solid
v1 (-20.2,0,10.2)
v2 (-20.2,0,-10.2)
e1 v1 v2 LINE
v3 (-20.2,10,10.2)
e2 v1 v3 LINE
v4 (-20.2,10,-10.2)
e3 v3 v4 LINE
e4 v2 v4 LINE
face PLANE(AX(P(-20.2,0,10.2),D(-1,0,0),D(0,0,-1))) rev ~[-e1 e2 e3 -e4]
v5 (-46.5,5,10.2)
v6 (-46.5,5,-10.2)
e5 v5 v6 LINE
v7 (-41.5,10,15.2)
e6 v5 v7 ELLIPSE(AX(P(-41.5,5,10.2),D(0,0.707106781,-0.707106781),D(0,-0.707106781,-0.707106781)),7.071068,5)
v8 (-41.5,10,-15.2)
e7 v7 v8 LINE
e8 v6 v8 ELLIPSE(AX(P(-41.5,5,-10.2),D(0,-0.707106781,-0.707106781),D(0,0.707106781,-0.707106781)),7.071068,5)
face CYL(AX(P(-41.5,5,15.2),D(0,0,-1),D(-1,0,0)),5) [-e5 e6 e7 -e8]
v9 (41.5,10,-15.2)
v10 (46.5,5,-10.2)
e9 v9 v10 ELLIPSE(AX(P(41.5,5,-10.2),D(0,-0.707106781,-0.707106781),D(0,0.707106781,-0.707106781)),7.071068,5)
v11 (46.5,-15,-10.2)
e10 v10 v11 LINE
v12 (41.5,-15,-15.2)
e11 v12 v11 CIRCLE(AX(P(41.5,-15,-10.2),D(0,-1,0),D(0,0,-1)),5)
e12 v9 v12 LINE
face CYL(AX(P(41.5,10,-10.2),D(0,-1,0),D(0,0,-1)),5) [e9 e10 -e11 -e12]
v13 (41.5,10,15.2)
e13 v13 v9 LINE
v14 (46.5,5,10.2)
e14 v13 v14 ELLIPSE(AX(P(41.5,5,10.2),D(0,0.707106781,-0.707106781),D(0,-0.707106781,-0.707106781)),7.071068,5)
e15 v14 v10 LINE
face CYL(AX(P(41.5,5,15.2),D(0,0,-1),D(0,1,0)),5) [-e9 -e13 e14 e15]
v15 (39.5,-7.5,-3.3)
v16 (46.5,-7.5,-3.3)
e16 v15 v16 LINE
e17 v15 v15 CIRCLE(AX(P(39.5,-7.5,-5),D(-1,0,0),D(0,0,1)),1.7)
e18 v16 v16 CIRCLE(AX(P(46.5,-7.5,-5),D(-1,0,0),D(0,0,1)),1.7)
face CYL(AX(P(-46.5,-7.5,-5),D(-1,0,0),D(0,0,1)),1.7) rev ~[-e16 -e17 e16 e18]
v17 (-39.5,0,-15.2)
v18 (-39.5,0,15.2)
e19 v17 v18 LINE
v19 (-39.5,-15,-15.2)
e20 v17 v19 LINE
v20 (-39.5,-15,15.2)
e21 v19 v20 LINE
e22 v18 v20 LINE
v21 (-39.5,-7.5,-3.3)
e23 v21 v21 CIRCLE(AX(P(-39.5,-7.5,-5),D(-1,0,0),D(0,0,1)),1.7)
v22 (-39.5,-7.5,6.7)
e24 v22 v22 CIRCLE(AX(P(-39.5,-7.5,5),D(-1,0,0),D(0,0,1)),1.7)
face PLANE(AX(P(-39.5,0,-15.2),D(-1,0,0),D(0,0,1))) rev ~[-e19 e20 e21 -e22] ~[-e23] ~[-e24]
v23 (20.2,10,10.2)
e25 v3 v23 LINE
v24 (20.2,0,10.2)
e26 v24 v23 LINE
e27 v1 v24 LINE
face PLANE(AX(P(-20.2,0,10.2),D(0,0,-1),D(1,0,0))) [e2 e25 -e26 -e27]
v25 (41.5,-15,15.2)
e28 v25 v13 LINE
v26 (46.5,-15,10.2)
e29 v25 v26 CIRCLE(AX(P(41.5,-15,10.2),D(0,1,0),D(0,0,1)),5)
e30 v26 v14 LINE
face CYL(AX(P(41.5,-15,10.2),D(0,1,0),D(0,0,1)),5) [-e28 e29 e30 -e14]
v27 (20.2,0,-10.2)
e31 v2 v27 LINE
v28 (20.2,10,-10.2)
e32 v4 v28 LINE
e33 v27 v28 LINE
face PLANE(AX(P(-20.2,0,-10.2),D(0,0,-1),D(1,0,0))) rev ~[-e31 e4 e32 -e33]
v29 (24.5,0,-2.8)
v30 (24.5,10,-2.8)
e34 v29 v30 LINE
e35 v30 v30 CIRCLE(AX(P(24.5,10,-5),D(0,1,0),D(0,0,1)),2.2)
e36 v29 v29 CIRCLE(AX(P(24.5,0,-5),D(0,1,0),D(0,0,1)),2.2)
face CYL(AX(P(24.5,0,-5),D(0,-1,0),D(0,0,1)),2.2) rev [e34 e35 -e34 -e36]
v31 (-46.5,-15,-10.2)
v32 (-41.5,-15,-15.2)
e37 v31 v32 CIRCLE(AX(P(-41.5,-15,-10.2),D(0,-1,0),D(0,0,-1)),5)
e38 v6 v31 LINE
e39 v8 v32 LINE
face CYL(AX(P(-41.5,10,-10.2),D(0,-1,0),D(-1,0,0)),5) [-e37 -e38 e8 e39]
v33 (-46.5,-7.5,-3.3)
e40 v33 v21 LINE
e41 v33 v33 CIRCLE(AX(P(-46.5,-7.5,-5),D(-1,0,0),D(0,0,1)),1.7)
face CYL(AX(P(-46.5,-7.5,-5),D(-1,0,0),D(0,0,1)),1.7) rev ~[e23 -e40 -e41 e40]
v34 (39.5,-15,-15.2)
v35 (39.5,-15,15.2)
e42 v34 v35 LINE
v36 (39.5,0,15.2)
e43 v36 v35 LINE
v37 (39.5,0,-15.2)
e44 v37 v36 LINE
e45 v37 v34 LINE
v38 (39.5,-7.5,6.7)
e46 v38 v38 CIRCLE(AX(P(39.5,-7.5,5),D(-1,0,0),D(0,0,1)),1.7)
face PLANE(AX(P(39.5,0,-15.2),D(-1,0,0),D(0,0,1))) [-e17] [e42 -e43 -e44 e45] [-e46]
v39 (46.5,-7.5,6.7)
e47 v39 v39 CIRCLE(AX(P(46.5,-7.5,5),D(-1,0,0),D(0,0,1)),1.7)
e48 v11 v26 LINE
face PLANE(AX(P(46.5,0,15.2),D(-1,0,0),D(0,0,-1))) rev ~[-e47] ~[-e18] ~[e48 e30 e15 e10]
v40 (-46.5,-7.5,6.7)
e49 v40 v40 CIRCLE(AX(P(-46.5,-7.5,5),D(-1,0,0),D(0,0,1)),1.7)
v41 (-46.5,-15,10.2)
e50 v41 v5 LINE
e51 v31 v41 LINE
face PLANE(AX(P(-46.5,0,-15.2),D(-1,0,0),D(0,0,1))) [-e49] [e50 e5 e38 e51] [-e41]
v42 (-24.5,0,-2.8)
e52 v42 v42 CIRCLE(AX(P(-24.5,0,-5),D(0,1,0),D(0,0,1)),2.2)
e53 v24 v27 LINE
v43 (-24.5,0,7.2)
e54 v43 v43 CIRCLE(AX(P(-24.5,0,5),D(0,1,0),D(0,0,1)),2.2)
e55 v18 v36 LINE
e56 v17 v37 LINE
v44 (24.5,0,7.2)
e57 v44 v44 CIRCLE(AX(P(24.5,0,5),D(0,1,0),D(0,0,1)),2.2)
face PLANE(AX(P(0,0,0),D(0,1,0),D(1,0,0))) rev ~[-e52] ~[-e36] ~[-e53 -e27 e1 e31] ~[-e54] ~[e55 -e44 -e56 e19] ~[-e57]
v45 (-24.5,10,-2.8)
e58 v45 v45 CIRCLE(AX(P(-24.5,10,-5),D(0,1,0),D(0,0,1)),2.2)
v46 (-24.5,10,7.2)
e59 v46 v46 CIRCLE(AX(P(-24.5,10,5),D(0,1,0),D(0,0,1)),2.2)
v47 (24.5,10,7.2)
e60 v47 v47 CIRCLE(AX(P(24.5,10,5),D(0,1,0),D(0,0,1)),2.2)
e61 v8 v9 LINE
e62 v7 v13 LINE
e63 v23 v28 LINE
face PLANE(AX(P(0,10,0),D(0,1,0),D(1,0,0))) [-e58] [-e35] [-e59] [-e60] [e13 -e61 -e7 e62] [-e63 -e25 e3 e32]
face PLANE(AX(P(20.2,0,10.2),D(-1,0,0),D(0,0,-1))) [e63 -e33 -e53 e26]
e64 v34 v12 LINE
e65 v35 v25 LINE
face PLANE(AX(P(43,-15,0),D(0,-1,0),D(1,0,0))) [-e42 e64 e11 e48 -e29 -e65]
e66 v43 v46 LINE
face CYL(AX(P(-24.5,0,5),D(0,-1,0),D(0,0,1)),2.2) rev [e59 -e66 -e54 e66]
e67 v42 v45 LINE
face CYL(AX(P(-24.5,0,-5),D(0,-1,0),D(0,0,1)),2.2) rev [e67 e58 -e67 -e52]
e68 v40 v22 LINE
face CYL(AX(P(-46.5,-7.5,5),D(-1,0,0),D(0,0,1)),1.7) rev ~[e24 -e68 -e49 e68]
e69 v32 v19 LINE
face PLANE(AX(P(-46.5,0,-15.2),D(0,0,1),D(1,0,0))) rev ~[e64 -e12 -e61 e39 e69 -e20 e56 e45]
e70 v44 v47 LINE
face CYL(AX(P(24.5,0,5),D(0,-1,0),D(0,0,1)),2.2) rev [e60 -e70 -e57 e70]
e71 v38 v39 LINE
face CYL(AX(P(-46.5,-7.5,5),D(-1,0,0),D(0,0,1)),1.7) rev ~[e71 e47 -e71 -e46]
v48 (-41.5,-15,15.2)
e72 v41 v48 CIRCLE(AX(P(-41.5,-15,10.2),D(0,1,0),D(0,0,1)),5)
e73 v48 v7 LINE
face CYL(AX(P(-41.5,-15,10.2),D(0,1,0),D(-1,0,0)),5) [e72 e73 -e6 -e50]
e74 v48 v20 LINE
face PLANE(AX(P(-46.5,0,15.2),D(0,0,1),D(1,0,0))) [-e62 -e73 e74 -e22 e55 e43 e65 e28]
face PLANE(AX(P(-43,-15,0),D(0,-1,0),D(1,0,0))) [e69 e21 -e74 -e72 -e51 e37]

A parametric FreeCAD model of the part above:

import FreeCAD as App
import Part
import Sketcher
Q = App.Units.Quantity


def edges_at(feature, points):
    """Names of the edges that pass closest to the given points."""
    edges = feature.Shape.Edges
    near = lambda p: min(range(len(edges)), key=lambda i: edges[i].distToShape(Part.Vertex(*p))[0])
    return sorted({f"Edge{near(p) + 1}" for p in points})


def add_polygon(sketch, points):
    """Adds a closed chain of lines whose ends are joined by coincident constraints."""
    first, n = sketch.GeometryCount, len(points)
    for a, b in zip(points, points[1:] + points[:1]):
        sketch.addGeometry(Part.LineSegment(App.Vector(*a, 0), App.Vector(*b, 0)), False)
    for i in range(n):
        sketch.addConstraint(Sketcher.Constraint("Coincident", first + i, 2, first + (i + 1) % n, 1))

doc = App.newDocument("Part")
params = doc.addObject("Spreadsheet::Sheet", "Params")
for row, (alias, value) in enumerate([
    ("sketch1_diameter", "4.4 mm"),
    ("sketch1_width", "93 mm"),
    ("sketch1_width2", "40.4 mm"),
    ("sketch1_height", "30.4 mm"),
    ("sketch1_height2", "20.4 mm"),
    ("pad1_length", "10 mm"),
    ("sketch2_width", "7 mm"),
    ("sketch2_height", "30.4 mm"),
    ("pad2_length", "15 mm"),
    ("sketch3_diameter", "3.4 mm"),
    ("fillet_radius", "5 mm"),
], start=1):
    params.set(f"A{row}", alias)
    params.set(f"B{row}", "=" + value)
    params.setAlias(f"B{row}", alias)

body = doc.addObject("PartDesign::Body", "Body")

sketch1 = body.newObject("Sketcher::SketchObject", "Sketch")
sketch1.AttachmentSupport = (doc.getObject("XZ_Plane"), [""])
sketch1.MapMode = "FlatFace"
add_polygon(sketch1, [(-46.5, -15.2), (-46.5, 15.2), (46.5, 15.2), (46.5, -15.2)])
sketch1.addGeometry(Part.Circle(App.Vector(-24.5, 5, 0), App.Vector(0, 0, 1), 2.2), False)
sketch1.addGeometry(Part.Circle(App.Vector(24.5, 5, 0), App.Vector(0, 0, 1), 2.2), False)
sketch1.addGeometry(Part.Circle(App.Vector(-24.5, -5, 0), App.Vector(0, 0, 1), 2.2), False)
add_polygon(sketch1, [(20.2, 10.2), (-20.2, 10.2), (-20.2, -10.2), (20.2, -10.2)])
sketch1.addGeometry(Part.Circle(App.Vector(24.5, -5, 0), App.Vector(0, 0, 1), 2.2), False)
sketch1.addConstraint([
    Sketcher.Constraint("Vertical", 0),
    Sketcher.Constraint("Horizontal", 1),
    Sketcher.Constraint("Vertical", 2),
    Sketcher.Constraint("Horizontal", 3),
    Sketcher.Constraint("Horizontal", 7),
    Sketcher.Constraint("Vertical", 8),
    Sketcher.Constraint("Horizontal", 9),
    Sketcher.Constraint("Vertical", 10),
    Sketcher.Constraint("Equal", 4, 5),
    Sketcher.Constraint("Equal", 5, 6),
    Sketcher.Constraint("Equal", 6, 11),
    Sketcher.Constraint("Symmetric", 5, 3, 6, 3, -1, 1),
    Sketcher.Constraint("Symmetric", 4, 3, 11, 3, -1, 1),
    Sketcher.Constraint("Symmetric", 0, 2, 2, 2, -1, 1),
    Sketcher.Constraint("Symmetric", 7, 2, 9, 2, -1, 1),
    Sketcher.Constraint("Symmetric", 4, 3, 5, 3, -2),
    Sketcher.Constraint("Diameter", 4, Q("4.4 mm")),
    Sketcher.Constraint("DistanceX", 1, 1, 1, 2, Q("93 mm")),
    Sketcher.Constraint("DistanceX", 7, 2, 7, 1, Q("40.4 mm")),
    Sketcher.Constraint("DistanceY", 0, 1, 0, 2, Q("30.4 mm")),
    Sketcher.Constraint("DistanceY", 8, 2, 8, 1, Q("20.4 mm")),
    Sketcher.Constraint("DistanceY", -1, 1, 4, 3, Q("5 mm")),
    Sketcher.Constraint("DistanceX", 4, 3, 5, 3, Q("49 mm")),
])
sketch1.setExpression("Constraints[24]", "Params.sketch1_diameter")
sketch1.setExpression("Constraints[25]", "Params.sketch1_width")
sketch1.setExpression("Constraints[26]", "Params.sketch1_width2")
sketch1.setExpression("Constraints[27]", "Params.sketch1_height")
sketch1.setExpression("Constraints[28]", "Params.sketch1_height2")
pad1 = body.newObject("PartDesign::Pad", "Pad")
pad1.Profile = sketch1
pad1.setExpression("Length", "Params.pad1_length")
pad1.Reversed = True

sketch2 = body.newObject("Sketcher::SketchObject", "Sketch001")
sketch2.AttachmentSupport = (doc.getObject("XZ_Plane"), [""])
sketch2.MapMode = "FlatFace"
add_polygon(sketch2, [(-46, 15), (-46, -15), (-40, -15), (-40, 15)])
add_polygon(sketch2, [(40, 15), (40, -15), (46, -15), (46, 15)])
sketch2.addConstraint([
    Sketcher.Constraint("Vertical", 0),
    Sketcher.Constraint("Horizontal", 1),
    Sketcher.Constraint("Vertical", 2),
    Sketcher.Constraint("Horizontal", 3),
    Sketcher.Constraint("Vertical", 4),
    Sketcher.Constraint("Horizontal", 5),
    Sketcher.Constraint("Vertical", 6),
    Sketcher.Constraint("Horizontal", 7),
    Sketcher.Constraint("Symmetric", 2, 2, 4, 2, -1, 1),
    Sketcher.Constraint("Symmetric", 0, 2, 6, 2, -1, 1),
    Sketcher.Constraint("Horizontal", 1, 2, 4, 2),
    Sketcher.Constraint("DistanceX", 1, 1, 1, 2, Q("7 mm")),
    Sketcher.Constraint("DistanceY", 0, 2, 0, 1, Q("30.4 mm")),
    Sketcher.Constraint("DistanceX", 1, 2, 4, 2, Q("79 mm")),
])
sketch2.setExpression("Constraints[19]", "Params.sketch2_width")
sketch2.setExpression("Constraints[20]", "Params.sketch2_height")
pad2 = body.newObject("PartDesign::Pad", "Pad001")
pad2.Profile = sketch2
pad2.setExpression("Length", "Params.pad2_length")

sketch3 = body.newObject("Sketcher::SketchObject", "Sketch002")
sketch3.AttachmentSupport = (doc.getObject("YZ_Plane"), [""])
sketch3.MapMode = "FlatFace"
sketch3.AttachmentOffset = App.Placement(App.Vector(0, 0, -46.5), App.Rotation())
sketch3.addGeometry([
    Part.Circle(App.Vector(-7.5, -5, 0), App.Vector(0, 0, 1), 1.7),
    Part.Circle(App.Vector(-7.5, 5, 0), App.Vector(0, 0, 1), 1.7),
], False)
sketch3.addConstraint([
    Sketcher.Constraint("Equal", 0, 1),
    Sketcher.Constraint("Symmetric", 0, 3, 1, 3, -1),
    Sketcher.Constraint("Diameter", 0, Q("3.4 mm")),
    Sketcher.Constraint("DistanceY", 0, 3, -1, 1, Q("5 mm")),
    Sketcher.Constraint("DistanceX", 0, 3, -1, 1, Q("7.5 mm")),
])
sketch3.setExpression("Constraints[2]", "Params.sketch3_diameter")
pocket1 = body.newObject("PartDesign::Pocket", "Pocket")
pocket1.Profile = sketch3
pocket1.Type = "ThroughAll"
pocket1.Reversed = True
doc.recompute()

fillet = body.newObject("PartDesign::Fillet", "Fillet")
fillet.Base = (pocket1, edges_at(pocket1, [
    (46.5, 10, 0),
    (-46.5, 10, 0),
    (-46.5, -2.5, -15.2),
    (46.5, -2.5, -15.2),
    (46.5, -2.5, 15.2),
    (-46.5, -2.5, 15.2),
]))
fillet.setExpression("Radius", "Params.fillet_radius")

doc.recompute()
